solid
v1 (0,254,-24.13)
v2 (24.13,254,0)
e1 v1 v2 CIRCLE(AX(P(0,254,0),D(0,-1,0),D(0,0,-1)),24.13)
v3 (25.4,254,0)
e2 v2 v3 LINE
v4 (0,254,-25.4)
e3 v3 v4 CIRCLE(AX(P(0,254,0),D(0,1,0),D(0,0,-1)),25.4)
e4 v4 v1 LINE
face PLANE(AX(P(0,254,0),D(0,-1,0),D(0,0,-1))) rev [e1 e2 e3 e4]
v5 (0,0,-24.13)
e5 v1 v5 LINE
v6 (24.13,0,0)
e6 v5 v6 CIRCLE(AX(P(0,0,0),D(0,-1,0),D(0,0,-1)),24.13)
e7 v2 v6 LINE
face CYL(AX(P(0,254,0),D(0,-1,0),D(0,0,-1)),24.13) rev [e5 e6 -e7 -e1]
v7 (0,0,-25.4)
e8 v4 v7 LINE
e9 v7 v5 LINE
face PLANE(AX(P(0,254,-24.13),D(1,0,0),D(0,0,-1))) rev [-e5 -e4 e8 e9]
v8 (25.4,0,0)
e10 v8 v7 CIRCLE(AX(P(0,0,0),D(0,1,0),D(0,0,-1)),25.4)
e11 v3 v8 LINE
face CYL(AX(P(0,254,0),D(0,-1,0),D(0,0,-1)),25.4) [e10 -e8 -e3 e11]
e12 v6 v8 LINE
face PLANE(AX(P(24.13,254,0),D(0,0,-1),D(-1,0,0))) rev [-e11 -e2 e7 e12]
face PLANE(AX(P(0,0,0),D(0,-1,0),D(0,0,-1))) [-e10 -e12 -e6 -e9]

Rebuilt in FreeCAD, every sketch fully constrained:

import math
import FreeCAD as App
import Part
import Sketcher

V = App.Vector
Q = App.Units.Quantity

doc = App.newDocument("Part")
body = doc.addObject("PartDesign::Body", "Body")

# Sketch on XZ plane
sketch1 = doc.addObject("Sketcher::SketchObject", "Sketch")
body.addObject(sketch1)
sketch1.AttachmentSupport = (doc.XZ_Plane, [""])
sketch1.MapMode = "FlatFace"
sketch1.addGeometry([
    Part.LineSegment(V(0, -25.4, 0), V(0, -24.13, 0)),
    Part.ArcOfCircle(Part.Circle(V(0, 0, 0), V(0, 0, 1), 24.13), math.radians(-90), math.radians(0)),
    Part.LineSegment(V(24.13, 0, 0), V(25.4, 0, 0)),
    Part.ArcOfCircle(Part.Circle(V(0, 0, 0), V(0, 0, 1), 25.4), math.radians(-90), math.radians(0)),
], False)
sketch1.addConstraint([
    Sketcher.Constraint("Coincident", 0, 2, 1, 1),
    Sketcher.Constraint("Coincident", 1, 2, 2, 1),
    Sketcher.Constraint("Coincident", 2, 2, 3, 2),
    Sketcher.Constraint("Coincident", 3, 1, 0, 1),
    Sketcher.Constraint("Vertical", 0),
    Sketcher.Constraint("Horizontal", 2),
    Sketcher.Constraint("Coincident", 1, 3, -1, 1),
    Sketcher.Constraint("Coincident", 3, 3, -1, 1),
    Sketcher.Constraint("PointOnObject", 0, 2, -2),
    Sketcher.Constraint("PointOnObject", 1, 2, -1),
    Sketcher.Constraint("Radius", 3, Q("1 in")),
    Sketcher.Constraint("Radius", 1, Q("0.95 in")),
])
pad1 = doc.addObject("PartDesign::Pad", "Pad")
body.addObject(pad1)
pad1.Profile = sketch1
pad1.Length = Q("10 in")
pad1.Reversed = True

doc.recompute()
